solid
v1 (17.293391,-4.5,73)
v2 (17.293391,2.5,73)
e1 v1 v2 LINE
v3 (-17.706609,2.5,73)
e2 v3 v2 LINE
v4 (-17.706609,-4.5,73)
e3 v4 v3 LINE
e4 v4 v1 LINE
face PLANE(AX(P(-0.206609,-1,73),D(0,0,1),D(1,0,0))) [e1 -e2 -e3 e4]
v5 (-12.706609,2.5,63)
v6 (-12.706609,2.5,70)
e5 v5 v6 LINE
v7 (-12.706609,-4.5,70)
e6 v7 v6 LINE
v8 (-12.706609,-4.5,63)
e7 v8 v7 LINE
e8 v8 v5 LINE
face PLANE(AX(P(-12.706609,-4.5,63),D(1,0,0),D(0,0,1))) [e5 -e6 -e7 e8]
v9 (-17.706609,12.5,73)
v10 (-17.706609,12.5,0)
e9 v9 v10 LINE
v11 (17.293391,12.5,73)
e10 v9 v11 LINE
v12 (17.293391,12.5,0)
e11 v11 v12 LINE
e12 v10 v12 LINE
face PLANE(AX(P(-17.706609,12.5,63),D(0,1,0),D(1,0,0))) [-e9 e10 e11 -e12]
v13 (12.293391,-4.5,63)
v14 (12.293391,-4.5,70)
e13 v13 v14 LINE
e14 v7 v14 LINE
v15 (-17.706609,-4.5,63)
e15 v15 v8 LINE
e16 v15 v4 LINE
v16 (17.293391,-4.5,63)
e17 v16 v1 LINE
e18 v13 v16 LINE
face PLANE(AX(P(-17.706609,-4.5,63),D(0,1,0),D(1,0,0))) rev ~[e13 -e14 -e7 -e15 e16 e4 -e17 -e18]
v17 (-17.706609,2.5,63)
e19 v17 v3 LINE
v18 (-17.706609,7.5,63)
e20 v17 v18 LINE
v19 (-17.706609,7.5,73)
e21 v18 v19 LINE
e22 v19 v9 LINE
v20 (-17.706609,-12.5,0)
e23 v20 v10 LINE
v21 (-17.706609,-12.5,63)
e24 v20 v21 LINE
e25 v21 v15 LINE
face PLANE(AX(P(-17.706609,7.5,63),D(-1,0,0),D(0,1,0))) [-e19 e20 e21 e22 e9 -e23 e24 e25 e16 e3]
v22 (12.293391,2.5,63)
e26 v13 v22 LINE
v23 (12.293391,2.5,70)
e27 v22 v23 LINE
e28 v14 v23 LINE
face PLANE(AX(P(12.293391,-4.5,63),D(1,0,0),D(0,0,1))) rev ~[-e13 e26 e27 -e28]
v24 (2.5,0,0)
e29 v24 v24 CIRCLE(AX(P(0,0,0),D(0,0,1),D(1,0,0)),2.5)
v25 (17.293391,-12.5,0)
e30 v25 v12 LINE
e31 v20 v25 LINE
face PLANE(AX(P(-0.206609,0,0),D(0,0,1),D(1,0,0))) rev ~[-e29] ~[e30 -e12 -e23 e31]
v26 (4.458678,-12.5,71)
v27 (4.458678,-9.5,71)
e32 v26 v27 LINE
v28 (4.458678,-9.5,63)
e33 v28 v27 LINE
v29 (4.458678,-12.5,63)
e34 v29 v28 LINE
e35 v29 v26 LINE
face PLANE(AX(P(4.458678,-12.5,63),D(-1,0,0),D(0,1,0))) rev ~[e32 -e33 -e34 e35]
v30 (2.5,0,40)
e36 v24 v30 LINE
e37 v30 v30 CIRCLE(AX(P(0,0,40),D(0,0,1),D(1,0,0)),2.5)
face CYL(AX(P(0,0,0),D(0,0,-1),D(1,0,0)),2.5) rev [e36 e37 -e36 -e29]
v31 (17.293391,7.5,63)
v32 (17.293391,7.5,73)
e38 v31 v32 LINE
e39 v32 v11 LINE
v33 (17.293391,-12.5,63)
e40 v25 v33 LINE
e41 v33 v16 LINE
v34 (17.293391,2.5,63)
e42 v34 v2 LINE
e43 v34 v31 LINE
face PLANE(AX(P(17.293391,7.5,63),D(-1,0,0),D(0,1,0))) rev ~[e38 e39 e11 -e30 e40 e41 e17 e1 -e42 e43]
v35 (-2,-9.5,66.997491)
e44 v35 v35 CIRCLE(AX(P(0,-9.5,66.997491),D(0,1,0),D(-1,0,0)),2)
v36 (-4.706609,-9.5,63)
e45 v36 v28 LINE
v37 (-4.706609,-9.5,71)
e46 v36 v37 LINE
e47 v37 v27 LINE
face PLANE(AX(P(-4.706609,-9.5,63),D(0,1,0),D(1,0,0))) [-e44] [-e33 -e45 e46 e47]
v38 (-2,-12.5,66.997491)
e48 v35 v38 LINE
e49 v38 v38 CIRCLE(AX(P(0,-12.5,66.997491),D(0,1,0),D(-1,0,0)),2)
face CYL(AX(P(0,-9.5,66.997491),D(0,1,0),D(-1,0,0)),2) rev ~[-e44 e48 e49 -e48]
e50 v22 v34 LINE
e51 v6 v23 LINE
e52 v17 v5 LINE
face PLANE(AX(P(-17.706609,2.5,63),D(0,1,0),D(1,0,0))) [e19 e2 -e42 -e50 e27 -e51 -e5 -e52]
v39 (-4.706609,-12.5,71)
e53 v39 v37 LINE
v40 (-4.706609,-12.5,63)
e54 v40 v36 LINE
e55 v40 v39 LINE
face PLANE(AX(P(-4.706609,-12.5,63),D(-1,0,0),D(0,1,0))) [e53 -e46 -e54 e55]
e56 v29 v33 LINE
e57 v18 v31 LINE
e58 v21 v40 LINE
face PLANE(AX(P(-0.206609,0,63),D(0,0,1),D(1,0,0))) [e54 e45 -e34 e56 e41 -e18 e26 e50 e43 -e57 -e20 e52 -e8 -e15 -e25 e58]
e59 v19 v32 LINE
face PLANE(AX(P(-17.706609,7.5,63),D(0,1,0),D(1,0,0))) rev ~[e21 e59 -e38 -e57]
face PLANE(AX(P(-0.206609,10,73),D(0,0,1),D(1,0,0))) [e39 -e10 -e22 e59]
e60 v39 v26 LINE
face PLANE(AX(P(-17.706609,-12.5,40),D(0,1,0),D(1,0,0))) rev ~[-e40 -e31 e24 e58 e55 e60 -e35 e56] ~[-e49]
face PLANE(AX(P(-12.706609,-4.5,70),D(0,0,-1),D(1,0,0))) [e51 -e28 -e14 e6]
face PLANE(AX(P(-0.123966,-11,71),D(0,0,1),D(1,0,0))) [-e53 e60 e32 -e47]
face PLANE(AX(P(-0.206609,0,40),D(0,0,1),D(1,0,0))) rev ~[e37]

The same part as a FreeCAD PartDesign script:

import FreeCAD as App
import Part
import Sketcher

V = App.Vector


def add_polygon(sketch, points):
    """Adds a closed chain of lines whose ends are joined by coincident constraints."""
    first, n = sketch.GeometryCount, len(points)
    for a, b in zip(points, points[1:] + points[:1]):
        sketch.addGeometry(Part.LineSegment(App.Vector(*a, 0), App.Vector(*b, 0)), False)
    for i in range(n):
        sketch.addConstraint(Sketcher.Constraint("Coincident", first + i, 2, first + (i + 1) % n, 1))

doc = App.newDocument("Part")
body = doc.addObject("PartDesign::Body", "Body")

sketch1 = body.newObject("Sketcher::SketchObject", "Sketch")
sketch1.AttachmentSupport = (doc.getObject("XY_Plane"), [""])
sketch1.MapMode = "FlatFace"
add_polygon(sketch1, [(-17.7, 12.5), (-17.7, -12.5), (17.3, -12.5), (17.3, 12.5)])
sketch1.addGeometry(Part.Circle(V(0, 0, 0), V(0, 0, 1), 2.5), False)
sketch1.addConstraint(Sketcher.Constraint("Vertical", 0))
sketch1.addConstraint(Sketcher.Constraint("Horizontal", 1))
sketch1.addConstraint(Sketcher.Constraint("Vertical", 2))
sketch1.addConstraint(Sketcher.Constraint("Horizontal", 3))
sketch1.addConstraint(Sketcher.Constraint("Coincident", 4, 3, -1, 1))
sketch1.addConstraint(Sketcher.Constraint("Diameter", 4, 5.0))
sketch1.addConstraint(Sketcher.Constraint("DistanceX", 1, 1, 1, 2, 35.0))
sketch1.addConstraint(Sketcher.Constraint("DistanceY", 0, 2, 0, 1, 25.0))
sketch1.addConstraint(Sketcher.Constraint("DistanceY", 0, 2, -1, 1, 12.5))
sketch1.addConstraint(Sketcher.Constraint("DistanceX", 0, 2, -1, 1, 17.706609))
pad1 = body.newObject("PartDesign::Pad", "Pad")
pad1.Profile = sketch1
pad1.Length = 40

sketch2 = body.newObject("Sketcher::SketchObject", "Sketch001")
sketch2.AttachmentSupport = (doc.getObject("XY_Plane"), [""])
sketch2.MapMode = "FlatFace"
sketch2.AttachmentOffset = App.Placement(V(0, 0, 40), App.Rotation())
add_polygon(sketch2, [(-18, 12), (-18, -12), (17, -12), (17, 12)])
sketch2.addConstraint(Sketcher.Constraint("Vertical", 0))
sketch2.addConstraint(Sketcher.Constraint("Horizontal", 1))
sketch2.addConstraint(Sketcher.Constraint("Vertical", 2))
sketch2.addConstraint(Sketcher.Constraint("Horizontal", 3))
sketch2.addConstraint(Sketcher.Constraint("DistanceX", 1, 1, 1, 2, 35.0))
sketch2.addConstraint(Sketcher.Constraint("DistanceY", 0, 2, 0, 1, 25.0))
sketch2.addConstraint(Sketcher.Constraint("DistanceY", 0, 2, -1, 1, 12.5))
sketch2.addConstraint(Sketcher.Constraint("DistanceX", 0, 2, -1, 1, 17.706609))
pad2 = body.newObject("PartDesign::Pad", "Pad001")
pad2.Profile = sketch2
pad2.Length = 23

sketch3 = body.newObject("Sketcher::SketchObject", "Sketch002")
sketch3.AttachmentSupport = (doc.getObject("XY_Plane"), [""])
sketch3.MapMode = "FlatFace"
sketch3.AttachmentOffset = App.Placement(V(0, 0, 63), App.Rotation())
add_polygon(sketch3, [(-18, 12), (-18, 8), (17, 8), (17, 12)])
sketch3.addConstraint(Sketcher.Constraint("Vertical", 0))
sketch3.addConstraint(Sketcher.Constraint("Horizontal", 1))
sketch3.addConstraint(Sketcher.Constraint("Vertical", 2))
sketch3.addConstraint(Sketcher.Constraint("Horizontal", 3))
sketch3.addConstraint(Sketcher.Constraint("DistanceX", 1, 1, 1, 2, 35.0))
sketch3.addConstraint(Sketcher.Constraint("DistanceY", 0, 2, 0, 1, 5.0))
sketch3.addConstraint(Sketcher.Constraint("DistanceY", -1, 1, 0, 2, 7.5))
sketch3.addConstraint(Sketcher.Constraint("DistanceX", 0, 2, -1, 1, 17.706609))
pad3 = body.newObject("PartDesign::Pad", "Pad002")
pad3.Profile = sketch3
pad3.Length = 10

sketch4 = body.newObject("Sketcher::SketchObject", "Sketch003")
sketch4.AttachmentSupport = (doc.getObject("XY_Plane"), [""])
sketch4.MapMode = "FlatFace"
sketch4.AttachmentOffset = App.Placement(V(0, 0, 63), App.Rotation())
add_polygon(sketch4, [(-18, 2), (-18, -4), (17, -4), (17, 2)])
sketch4.addConstraint(Sketcher.Constraint("Vertical", 0))
sketch4.addConstraint(Sketcher.Constraint("Horizontal", 1))
sketch4.addConstraint(Sketcher.Constraint("Vertical", 2))
sketch4.addConstraint(Sketcher.Constraint("Horizontal", 3))
sketch4.addConstraint(Sketcher.Constraint("DistanceX", 1, 1, 1, 2, 35.0))
sketch4.addConstraint(Sketcher.Constraint("DistanceY", 0, 2, 0, 1, 7.0))
sketch4.addConstraint(Sketcher.Constraint("DistanceY", 0, 2, -1, 1, 4.5))
sketch4.addConstraint(Sketcher.Constraint("DistanceX", 0, 2, -1, 1, 17.706609))
pad4 = body.newObject("PartDesign::Pad", "Pad003")
pad4.Profile = sketch4
pad4.Length = 10

sketch5 = body.newObject("Sketcher::SketchObject", "Sketch004")
sketch5.AttachmentSupport = (doc.getObject("XZ_Plane"), [""])
sketch5.MapMode = "FlatFace"
sketch5.AttachmentOffset = App.Placement(V(0, 0, 4.5), App.Rotation())
add_polygon(sketch5, [(-13, 70), (-13, 63), (12, 63), (12, 70)])
sketch5.addConstraint(Sketcher.Constraint("Vertical", 0))
sketch5.addConstraint(Sketcher.Constraint("Horizontal", 1))
sketch5.addConstraint(Sketcher.Constraint("Vertical", 2))
sketch5.addConstraint(Sketcher.Constraint("Horizontal", 3))
sketch5.addConstraint(Sketcher.Constraint("DistanceX", 1, 1, 1, 2, 25.0))
sketch5.addConstraint(Sketcher.Constraint("DistanceY", 0, 2, 0, 1, 7.0))
sketch5.addConstraint(Sketcher.Constraint("DistanceY", -1, 1, 0, 2, 63.0))
sketch5.addConstraint(Sketcher.Constraint("DistanceX", 0, 2, -1, 1, 12.706609))
pocket1 = body.newObject("PartDesign::Pocket", "Pocket")
pocket1.Profile = sketch5
pocket1.Length = 7

sketch6 = body.newObject("Sketcher::SketchObject", "Sketch005")
sketch6.AttachmentSupport = (doc.getObject("XY_Plane"), [""])
sketch6.MapMode = "FlatFace"
sketch6.AttachmentOffset = App.Placement(V(0, 0, 63), App.Rotation())
add_polygon(sketch6, [(-4.7, -9.5), (-4.7, -12.5), (4.5, -12.5), (4.5, -9.5)])
sketch6.addConstraint(Sketcher.Constraint("Vertical", 0))
sketch6.addConstraint(Sketcher.Constraint("Horizontal", 1))
sketch6.addConstraint(Sketcher.Constraint("Vertical", 2))
sketch6.addConstraint(Sketcher.Constraint("Horizontal", 3))
sketch6.addConstraint(Sketcher.Constraint("DistanceY", 0, 2, 0, 1, 3.0))
sketch6.addConstraint(Sketcher.Constraint("DistanceY", 0, 2, -1, 1, 12.5))
sketch6.addConstraint(Sketcher.Constraint("DistanceX", 1, 1, 1, 2, 9.165287))
sketch6.addConstraint(Sketcher.Constraint("DistanceX", 0, 2, -1, 1, 4.706609))
pad5 = body.newObject("PartDesign::Pad", "Pad004")
pad5.Profile = sketch6
pad5.Length = 8

sketch7 = body.newObject("Sketcher::SketchObject", "Sketch006")
sketch7.AttachmentSupport = (doc.getObject("XZ_Plane"), [""])
sketch7.MapMode = "FlatFace"
sketch7.AttachmentOffset = App.Placement(V(0, 0, 9.5), App.Rotation())
sketch7.addGeometry(Part.Circle(V(0, 67, 0), V(0, 0, 1), 2), False)
sketch7.addConstraint(Sketcher.Constraint("PointOnObject", 0, 3, -2))
sketch7.addConstraint(Sketcher.Constraint("Diameter", 0, 4.0))
sketch7.addConstraint(Sketcher.Constraint("DistanceY", -1, 1, 0, 3, 66.997491))
pocket2 = body.newObject("PartDesign::Pocket", "Pocket001")
pocket2.Profile = sketch7
pocket2.Type = "ThroughAll"
pocket2.Reversed = True

doc.recompute()
